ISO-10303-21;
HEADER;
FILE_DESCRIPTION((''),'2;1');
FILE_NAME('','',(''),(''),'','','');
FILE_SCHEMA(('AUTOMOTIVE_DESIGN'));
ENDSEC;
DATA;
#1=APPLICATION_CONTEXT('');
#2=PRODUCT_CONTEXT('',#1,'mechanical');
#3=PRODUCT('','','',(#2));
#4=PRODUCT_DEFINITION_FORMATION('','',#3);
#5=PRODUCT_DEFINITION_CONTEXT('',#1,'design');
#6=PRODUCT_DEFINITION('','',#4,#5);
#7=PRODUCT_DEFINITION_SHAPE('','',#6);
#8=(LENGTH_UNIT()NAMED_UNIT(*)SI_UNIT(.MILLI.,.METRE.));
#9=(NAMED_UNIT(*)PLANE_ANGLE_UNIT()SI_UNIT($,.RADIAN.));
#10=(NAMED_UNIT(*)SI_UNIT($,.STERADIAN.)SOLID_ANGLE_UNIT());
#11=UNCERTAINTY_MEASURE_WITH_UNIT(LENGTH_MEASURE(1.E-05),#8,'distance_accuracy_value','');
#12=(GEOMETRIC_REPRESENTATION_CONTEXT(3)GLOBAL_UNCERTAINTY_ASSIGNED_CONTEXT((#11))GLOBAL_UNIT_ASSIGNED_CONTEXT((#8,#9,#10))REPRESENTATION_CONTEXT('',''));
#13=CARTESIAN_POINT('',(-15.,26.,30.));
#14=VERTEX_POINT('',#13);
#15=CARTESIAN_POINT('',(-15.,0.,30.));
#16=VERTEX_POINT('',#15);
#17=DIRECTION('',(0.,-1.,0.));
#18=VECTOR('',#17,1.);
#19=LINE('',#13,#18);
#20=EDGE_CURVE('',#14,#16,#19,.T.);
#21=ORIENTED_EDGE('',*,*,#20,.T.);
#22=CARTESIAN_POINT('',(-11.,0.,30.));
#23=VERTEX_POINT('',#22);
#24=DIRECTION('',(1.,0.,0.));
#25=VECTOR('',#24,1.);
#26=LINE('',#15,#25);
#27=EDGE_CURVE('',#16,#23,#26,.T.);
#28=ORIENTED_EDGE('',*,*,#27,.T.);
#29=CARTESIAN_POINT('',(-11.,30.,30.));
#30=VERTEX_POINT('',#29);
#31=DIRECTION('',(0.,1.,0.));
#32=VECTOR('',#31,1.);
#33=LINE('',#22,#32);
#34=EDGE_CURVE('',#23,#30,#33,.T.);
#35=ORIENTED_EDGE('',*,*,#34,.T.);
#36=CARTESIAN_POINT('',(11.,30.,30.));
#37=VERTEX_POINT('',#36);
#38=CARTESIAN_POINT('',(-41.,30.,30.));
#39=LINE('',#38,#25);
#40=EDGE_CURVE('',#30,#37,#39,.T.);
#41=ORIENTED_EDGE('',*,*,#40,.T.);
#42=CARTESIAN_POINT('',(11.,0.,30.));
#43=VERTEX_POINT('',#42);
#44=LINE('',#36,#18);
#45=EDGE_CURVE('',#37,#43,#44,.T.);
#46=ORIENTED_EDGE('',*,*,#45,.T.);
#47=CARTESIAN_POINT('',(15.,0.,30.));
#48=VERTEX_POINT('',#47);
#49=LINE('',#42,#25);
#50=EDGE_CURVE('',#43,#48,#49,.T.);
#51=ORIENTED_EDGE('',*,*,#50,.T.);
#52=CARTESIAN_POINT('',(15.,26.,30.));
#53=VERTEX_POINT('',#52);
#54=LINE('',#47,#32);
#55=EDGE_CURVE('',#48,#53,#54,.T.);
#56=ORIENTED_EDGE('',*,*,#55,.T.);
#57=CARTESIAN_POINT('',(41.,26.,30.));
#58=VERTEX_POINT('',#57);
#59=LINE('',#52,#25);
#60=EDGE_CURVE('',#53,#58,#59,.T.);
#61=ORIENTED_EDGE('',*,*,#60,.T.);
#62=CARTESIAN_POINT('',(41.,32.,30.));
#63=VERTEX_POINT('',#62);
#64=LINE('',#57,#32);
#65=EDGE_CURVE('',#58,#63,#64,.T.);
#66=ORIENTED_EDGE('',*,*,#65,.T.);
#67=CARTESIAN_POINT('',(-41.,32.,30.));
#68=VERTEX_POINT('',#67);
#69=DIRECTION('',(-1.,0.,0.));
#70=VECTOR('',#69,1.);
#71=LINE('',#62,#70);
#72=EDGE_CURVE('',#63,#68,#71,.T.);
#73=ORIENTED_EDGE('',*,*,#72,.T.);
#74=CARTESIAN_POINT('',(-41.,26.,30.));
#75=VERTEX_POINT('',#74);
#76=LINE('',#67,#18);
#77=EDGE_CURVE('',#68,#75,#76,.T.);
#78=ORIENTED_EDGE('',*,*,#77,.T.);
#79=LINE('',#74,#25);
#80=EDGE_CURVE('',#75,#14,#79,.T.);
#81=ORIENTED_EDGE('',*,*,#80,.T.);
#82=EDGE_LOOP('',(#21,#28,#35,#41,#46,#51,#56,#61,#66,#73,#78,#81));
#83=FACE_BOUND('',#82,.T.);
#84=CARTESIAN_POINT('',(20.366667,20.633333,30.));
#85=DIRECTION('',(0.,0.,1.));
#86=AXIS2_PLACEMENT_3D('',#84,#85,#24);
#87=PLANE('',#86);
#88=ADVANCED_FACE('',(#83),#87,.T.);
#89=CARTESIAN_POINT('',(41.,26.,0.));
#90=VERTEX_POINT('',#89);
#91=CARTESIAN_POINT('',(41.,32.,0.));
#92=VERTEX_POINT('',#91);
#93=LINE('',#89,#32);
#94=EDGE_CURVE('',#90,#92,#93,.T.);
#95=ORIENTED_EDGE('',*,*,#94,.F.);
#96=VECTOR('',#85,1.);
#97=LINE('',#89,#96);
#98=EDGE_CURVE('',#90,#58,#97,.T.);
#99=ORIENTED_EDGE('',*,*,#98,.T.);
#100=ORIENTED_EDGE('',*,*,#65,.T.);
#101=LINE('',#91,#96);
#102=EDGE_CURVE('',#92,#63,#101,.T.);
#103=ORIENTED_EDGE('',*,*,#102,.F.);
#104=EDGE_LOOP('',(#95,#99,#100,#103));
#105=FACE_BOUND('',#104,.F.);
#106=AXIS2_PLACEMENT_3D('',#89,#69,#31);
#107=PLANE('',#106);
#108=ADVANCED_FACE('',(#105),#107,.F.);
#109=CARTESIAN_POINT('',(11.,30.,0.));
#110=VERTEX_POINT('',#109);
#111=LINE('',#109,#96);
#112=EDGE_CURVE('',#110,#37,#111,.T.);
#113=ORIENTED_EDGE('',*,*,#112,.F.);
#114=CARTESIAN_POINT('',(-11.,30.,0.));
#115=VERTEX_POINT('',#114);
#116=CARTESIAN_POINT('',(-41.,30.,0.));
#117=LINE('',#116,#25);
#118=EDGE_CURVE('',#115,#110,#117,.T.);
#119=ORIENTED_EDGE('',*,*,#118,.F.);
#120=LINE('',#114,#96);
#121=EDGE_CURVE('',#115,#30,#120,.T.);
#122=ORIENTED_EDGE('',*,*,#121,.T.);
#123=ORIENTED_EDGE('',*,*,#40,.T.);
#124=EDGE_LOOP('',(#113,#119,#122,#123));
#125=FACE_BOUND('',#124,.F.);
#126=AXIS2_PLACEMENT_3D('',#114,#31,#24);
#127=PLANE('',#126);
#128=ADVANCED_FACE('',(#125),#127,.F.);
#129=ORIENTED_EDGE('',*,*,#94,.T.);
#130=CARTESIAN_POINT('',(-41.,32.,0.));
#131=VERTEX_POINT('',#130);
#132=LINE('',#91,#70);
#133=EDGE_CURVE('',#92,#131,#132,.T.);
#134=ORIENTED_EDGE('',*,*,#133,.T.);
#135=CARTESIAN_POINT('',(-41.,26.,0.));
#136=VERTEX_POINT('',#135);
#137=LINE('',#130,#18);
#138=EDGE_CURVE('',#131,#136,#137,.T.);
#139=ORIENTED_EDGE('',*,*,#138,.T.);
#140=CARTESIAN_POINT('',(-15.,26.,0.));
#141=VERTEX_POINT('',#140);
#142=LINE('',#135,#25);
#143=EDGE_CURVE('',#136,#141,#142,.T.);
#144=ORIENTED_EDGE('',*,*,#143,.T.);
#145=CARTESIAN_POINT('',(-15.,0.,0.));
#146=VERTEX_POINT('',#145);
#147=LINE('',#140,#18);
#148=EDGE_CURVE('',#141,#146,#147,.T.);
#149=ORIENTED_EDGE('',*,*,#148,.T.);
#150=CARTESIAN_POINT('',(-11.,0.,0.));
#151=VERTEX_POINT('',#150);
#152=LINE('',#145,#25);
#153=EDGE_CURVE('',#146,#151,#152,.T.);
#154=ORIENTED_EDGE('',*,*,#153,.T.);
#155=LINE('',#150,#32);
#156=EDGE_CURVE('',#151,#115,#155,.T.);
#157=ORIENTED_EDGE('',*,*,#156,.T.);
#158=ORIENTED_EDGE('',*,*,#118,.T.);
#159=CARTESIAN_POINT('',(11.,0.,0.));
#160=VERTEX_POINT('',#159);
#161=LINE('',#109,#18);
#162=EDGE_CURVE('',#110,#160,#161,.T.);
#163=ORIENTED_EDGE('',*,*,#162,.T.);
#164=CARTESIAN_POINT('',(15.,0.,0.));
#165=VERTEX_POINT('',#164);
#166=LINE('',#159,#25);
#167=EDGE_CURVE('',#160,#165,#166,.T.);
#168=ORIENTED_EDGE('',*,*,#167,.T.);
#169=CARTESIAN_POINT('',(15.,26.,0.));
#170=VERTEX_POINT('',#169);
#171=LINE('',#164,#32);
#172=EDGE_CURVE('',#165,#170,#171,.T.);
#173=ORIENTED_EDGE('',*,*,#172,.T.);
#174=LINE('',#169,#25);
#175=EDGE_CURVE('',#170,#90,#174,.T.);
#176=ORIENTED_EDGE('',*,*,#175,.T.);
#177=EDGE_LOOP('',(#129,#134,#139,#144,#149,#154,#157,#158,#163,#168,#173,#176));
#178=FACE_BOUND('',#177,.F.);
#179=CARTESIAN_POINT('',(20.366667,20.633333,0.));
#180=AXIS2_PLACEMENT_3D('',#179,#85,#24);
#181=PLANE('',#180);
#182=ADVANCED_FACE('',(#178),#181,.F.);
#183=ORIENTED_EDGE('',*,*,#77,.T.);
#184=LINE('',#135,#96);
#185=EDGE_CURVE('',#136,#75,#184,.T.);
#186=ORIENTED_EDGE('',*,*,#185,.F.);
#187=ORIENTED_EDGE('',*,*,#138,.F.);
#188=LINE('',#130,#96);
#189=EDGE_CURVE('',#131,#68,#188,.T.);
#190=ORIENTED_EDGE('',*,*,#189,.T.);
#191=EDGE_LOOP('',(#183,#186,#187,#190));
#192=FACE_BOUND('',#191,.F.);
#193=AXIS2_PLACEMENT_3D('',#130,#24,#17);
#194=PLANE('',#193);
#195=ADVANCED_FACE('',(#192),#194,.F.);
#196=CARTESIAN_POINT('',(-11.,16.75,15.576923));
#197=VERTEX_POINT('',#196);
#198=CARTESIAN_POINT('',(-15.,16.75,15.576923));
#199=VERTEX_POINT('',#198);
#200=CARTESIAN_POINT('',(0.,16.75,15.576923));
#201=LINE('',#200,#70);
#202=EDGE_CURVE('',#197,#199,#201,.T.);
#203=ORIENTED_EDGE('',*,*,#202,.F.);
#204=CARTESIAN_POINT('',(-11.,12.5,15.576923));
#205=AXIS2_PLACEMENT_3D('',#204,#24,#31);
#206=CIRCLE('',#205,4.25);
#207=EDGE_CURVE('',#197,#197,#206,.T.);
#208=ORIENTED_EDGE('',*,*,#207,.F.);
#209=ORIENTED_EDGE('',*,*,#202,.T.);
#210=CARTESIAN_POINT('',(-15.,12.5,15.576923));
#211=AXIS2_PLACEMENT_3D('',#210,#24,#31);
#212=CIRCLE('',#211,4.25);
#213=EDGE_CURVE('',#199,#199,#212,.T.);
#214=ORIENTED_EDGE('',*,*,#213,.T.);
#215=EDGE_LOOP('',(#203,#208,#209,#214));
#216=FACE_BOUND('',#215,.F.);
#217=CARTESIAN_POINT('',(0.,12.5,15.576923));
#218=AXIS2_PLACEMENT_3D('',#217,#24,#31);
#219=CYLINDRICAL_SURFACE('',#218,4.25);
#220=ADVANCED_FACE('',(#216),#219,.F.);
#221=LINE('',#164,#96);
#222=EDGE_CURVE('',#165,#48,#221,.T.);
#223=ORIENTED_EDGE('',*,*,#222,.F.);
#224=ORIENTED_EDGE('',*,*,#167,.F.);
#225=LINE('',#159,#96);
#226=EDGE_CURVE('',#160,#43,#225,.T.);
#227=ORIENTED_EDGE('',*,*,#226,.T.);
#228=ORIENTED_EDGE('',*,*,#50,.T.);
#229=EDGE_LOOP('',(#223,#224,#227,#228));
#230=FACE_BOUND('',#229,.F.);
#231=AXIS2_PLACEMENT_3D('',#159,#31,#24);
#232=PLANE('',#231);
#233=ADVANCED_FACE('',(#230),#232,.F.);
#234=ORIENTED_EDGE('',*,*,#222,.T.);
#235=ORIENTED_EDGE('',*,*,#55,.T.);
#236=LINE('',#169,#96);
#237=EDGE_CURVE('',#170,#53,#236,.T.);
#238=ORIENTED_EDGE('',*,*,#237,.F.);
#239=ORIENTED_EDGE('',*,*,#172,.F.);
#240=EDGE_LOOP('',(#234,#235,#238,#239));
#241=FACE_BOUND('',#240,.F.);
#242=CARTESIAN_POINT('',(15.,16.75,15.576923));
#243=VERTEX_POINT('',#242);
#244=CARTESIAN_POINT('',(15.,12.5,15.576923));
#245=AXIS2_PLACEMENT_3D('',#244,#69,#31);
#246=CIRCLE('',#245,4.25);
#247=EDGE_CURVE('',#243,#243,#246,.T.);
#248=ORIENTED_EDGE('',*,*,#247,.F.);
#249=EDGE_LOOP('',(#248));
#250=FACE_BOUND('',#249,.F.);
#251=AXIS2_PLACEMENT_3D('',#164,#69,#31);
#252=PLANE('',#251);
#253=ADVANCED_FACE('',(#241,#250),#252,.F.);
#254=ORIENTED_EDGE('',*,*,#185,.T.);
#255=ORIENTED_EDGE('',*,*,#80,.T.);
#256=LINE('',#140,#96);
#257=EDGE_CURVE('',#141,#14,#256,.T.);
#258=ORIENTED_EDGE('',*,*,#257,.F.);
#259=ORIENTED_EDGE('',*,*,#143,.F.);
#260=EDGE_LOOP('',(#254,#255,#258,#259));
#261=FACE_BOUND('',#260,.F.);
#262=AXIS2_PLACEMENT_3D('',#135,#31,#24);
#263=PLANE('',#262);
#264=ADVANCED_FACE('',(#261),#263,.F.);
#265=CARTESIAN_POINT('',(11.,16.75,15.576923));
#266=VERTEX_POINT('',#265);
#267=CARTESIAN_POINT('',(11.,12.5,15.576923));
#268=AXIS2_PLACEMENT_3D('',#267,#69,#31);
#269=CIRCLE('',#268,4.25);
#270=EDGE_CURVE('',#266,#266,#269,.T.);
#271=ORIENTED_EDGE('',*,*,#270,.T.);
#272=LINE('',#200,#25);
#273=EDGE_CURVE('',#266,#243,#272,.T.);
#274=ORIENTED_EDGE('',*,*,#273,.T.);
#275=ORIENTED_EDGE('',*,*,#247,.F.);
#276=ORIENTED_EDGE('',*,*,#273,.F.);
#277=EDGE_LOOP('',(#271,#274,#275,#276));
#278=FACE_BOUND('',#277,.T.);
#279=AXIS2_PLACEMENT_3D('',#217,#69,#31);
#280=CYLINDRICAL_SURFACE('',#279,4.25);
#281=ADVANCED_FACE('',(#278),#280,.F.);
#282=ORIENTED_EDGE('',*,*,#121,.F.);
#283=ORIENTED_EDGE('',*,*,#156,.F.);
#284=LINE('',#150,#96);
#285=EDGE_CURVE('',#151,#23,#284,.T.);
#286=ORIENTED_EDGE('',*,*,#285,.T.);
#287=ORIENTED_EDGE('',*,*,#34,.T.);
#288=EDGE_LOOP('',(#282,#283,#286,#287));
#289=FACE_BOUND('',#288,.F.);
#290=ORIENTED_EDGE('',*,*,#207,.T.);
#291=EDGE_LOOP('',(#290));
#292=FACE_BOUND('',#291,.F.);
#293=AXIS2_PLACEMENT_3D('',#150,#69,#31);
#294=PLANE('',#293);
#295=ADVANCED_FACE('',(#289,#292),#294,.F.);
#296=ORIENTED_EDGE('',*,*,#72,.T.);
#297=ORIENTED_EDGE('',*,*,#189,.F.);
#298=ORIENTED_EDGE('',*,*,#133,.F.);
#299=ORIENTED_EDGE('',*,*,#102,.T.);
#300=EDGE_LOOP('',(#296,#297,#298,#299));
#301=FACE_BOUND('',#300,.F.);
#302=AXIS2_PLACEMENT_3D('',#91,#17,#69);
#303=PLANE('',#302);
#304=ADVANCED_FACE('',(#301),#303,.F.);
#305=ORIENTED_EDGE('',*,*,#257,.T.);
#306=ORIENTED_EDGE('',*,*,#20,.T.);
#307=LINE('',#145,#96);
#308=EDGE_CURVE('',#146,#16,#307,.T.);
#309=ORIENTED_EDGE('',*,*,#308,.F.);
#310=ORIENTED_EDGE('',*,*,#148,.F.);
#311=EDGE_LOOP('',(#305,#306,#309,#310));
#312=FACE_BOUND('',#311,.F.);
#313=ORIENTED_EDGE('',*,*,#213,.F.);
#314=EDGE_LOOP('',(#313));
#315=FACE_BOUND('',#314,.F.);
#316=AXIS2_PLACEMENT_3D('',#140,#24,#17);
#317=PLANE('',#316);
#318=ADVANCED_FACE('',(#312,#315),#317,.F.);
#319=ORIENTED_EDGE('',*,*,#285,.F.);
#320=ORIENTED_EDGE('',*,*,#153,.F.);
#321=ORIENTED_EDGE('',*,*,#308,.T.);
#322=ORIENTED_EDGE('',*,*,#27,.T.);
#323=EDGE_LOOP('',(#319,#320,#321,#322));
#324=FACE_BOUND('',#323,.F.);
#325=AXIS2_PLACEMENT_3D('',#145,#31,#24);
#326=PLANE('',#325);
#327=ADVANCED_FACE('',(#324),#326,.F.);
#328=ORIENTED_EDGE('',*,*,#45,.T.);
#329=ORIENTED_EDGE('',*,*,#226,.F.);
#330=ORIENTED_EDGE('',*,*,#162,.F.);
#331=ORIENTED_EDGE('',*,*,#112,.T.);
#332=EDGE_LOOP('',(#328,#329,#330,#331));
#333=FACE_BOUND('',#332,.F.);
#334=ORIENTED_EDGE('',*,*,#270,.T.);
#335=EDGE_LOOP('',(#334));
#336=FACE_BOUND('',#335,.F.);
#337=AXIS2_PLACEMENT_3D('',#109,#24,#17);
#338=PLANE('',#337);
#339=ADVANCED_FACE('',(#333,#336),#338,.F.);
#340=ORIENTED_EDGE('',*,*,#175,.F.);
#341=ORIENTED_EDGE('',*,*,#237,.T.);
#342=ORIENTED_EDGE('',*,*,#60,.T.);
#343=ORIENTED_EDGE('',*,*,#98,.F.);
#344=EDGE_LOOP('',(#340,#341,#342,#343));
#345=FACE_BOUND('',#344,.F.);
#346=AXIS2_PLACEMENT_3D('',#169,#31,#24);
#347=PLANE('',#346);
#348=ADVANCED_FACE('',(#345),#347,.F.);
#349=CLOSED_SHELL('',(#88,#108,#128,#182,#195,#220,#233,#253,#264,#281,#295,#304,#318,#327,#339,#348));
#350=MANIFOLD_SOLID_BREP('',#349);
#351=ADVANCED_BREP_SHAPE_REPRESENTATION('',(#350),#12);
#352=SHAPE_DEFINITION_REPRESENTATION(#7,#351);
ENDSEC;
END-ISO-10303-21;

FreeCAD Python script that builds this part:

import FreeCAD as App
import Part
import Sketcher
Q = App.Units.Quantity


def add_polygon(sketch, points):
    """Adds a closed chain of lines whose ends are joined by coincident constraints."""
    first, n = sketch.GeometryCount, len(points)
    for a, b in zip(points, points[1:] + points[:1]):
        sketch.addGeometry(Part.LineSegment(App.Vector(*a, 0), App.Vector(*b, 0)), False)
    for i in range(n):
        sketch.addConstraint(Sketcher.Constraint("Coincident", first + i, 2, first + (i + 1) % n, 1))

doc = App.newDocument("Part")
body = doc.addObject("PartDesign::Body", "Body")

sketch1 = doc.addObject("Sketcher::SketchObject", "Sketch")
body.addObject(sketch1)
sketch1.AttachmentSupport = (doc.XY_Plane, [""])
sketch1.MapMode = "FlatFace"
add_polygon(sketch1, [(11, 30), (11, 0), (15, 0), (15, 26), (41, 26), (41, 32), (-41, 32), (-41, 26), (-15, 26), (-15, 0), (-11, 0), (-11, 30)])
sketch1.addConstraint([
    Sketcher.Constraint("Vertical", 0),
    Sketcher.Constraint("Horizontal", 1),
    Sketcher.Constraint("Vertical", 2),
    Sketcher.Constraint("Horizontal", 3),
    Sketcher.Constraint("Vertical", 4),
    Sketcher.Constraint("Horizontal", 5),
    Sketcher.Constraint("Vertical", 6),
    Sketcher.Constraint("Horizontal", 7),
    Sketcher.Constraint("Vertical", 8),
    Sketcher.Constraint("Horizontal", 9),
    Sketcher.Constraint("Vertical", 10),
    Sketcher.Constraint("Horizontal", 11),
    Sketcher.Constraint("Symmetric", 1, 2, 8, 2, -1, 1),
    Sketcher.Constraint("Symmetric", 3, 2, 6, 2, -2),
    Sketcher.Constraint("Symmetric", 0, 2, 9, 2, -2),
    Sketcher.Constraint("Equal", 7, 2),
    Sketcher.Constraint("DistanceX", 1, 1, 1, 2, Q("4 mm")),
    Sketcher.Constraint("DistanceX", 3, 1, 3, 2, Q("26 mm")),
    Sketcher.Constraint("DistanceX", 5, 2, 5, 1, Q("82 mm")),
    Sketcher.Constraint("DistanceY", 0, 2, 0, 1, Q("30 mm")),
    Sketcher.Constraint("DistanceY", 4, 1, 4, 2, Q("6 mm")),
])
pad1 = doc.addObject("PartDesign::Pad", "Pad")
body.addObject(pad1)
pad1.Profile = sketch1
pad1.Length = 30

sketch2 = doc.addObject("Sketcher::SketchObject", "Sketch001")
body.addObject(sketch2)
sketch2.AttachmentSupport = (doc.YZ_Plane, [""])
sketch2.MapMode = "FlatFace"
sketch2.addGeometry(Part.Circle(App.Vector(12.5, 15.6, 0), App.Vector(0, 0, 1), 4.2), False)
sketch2.addConstraint([
    Sketcher.Constraint("Diameter", 0, Q("8.5 mm")),
    Sketcher.Constraint("DistanceX", -1, 1, 0, 3, Q("12.5 mm")),
    Sketcher.Constraint("DistanceY", -1, 1, 0, 3, Q("15.576923 mm")),
])
pocket1 = doc.addObject("PartDesign::Pocket", "Pocket")
body.addObject(pocket1)
pocket1.Profile = sketch2
pocket1.Type = "ThroughAll"
pocket1.Midplane = True

doc.recompute()
